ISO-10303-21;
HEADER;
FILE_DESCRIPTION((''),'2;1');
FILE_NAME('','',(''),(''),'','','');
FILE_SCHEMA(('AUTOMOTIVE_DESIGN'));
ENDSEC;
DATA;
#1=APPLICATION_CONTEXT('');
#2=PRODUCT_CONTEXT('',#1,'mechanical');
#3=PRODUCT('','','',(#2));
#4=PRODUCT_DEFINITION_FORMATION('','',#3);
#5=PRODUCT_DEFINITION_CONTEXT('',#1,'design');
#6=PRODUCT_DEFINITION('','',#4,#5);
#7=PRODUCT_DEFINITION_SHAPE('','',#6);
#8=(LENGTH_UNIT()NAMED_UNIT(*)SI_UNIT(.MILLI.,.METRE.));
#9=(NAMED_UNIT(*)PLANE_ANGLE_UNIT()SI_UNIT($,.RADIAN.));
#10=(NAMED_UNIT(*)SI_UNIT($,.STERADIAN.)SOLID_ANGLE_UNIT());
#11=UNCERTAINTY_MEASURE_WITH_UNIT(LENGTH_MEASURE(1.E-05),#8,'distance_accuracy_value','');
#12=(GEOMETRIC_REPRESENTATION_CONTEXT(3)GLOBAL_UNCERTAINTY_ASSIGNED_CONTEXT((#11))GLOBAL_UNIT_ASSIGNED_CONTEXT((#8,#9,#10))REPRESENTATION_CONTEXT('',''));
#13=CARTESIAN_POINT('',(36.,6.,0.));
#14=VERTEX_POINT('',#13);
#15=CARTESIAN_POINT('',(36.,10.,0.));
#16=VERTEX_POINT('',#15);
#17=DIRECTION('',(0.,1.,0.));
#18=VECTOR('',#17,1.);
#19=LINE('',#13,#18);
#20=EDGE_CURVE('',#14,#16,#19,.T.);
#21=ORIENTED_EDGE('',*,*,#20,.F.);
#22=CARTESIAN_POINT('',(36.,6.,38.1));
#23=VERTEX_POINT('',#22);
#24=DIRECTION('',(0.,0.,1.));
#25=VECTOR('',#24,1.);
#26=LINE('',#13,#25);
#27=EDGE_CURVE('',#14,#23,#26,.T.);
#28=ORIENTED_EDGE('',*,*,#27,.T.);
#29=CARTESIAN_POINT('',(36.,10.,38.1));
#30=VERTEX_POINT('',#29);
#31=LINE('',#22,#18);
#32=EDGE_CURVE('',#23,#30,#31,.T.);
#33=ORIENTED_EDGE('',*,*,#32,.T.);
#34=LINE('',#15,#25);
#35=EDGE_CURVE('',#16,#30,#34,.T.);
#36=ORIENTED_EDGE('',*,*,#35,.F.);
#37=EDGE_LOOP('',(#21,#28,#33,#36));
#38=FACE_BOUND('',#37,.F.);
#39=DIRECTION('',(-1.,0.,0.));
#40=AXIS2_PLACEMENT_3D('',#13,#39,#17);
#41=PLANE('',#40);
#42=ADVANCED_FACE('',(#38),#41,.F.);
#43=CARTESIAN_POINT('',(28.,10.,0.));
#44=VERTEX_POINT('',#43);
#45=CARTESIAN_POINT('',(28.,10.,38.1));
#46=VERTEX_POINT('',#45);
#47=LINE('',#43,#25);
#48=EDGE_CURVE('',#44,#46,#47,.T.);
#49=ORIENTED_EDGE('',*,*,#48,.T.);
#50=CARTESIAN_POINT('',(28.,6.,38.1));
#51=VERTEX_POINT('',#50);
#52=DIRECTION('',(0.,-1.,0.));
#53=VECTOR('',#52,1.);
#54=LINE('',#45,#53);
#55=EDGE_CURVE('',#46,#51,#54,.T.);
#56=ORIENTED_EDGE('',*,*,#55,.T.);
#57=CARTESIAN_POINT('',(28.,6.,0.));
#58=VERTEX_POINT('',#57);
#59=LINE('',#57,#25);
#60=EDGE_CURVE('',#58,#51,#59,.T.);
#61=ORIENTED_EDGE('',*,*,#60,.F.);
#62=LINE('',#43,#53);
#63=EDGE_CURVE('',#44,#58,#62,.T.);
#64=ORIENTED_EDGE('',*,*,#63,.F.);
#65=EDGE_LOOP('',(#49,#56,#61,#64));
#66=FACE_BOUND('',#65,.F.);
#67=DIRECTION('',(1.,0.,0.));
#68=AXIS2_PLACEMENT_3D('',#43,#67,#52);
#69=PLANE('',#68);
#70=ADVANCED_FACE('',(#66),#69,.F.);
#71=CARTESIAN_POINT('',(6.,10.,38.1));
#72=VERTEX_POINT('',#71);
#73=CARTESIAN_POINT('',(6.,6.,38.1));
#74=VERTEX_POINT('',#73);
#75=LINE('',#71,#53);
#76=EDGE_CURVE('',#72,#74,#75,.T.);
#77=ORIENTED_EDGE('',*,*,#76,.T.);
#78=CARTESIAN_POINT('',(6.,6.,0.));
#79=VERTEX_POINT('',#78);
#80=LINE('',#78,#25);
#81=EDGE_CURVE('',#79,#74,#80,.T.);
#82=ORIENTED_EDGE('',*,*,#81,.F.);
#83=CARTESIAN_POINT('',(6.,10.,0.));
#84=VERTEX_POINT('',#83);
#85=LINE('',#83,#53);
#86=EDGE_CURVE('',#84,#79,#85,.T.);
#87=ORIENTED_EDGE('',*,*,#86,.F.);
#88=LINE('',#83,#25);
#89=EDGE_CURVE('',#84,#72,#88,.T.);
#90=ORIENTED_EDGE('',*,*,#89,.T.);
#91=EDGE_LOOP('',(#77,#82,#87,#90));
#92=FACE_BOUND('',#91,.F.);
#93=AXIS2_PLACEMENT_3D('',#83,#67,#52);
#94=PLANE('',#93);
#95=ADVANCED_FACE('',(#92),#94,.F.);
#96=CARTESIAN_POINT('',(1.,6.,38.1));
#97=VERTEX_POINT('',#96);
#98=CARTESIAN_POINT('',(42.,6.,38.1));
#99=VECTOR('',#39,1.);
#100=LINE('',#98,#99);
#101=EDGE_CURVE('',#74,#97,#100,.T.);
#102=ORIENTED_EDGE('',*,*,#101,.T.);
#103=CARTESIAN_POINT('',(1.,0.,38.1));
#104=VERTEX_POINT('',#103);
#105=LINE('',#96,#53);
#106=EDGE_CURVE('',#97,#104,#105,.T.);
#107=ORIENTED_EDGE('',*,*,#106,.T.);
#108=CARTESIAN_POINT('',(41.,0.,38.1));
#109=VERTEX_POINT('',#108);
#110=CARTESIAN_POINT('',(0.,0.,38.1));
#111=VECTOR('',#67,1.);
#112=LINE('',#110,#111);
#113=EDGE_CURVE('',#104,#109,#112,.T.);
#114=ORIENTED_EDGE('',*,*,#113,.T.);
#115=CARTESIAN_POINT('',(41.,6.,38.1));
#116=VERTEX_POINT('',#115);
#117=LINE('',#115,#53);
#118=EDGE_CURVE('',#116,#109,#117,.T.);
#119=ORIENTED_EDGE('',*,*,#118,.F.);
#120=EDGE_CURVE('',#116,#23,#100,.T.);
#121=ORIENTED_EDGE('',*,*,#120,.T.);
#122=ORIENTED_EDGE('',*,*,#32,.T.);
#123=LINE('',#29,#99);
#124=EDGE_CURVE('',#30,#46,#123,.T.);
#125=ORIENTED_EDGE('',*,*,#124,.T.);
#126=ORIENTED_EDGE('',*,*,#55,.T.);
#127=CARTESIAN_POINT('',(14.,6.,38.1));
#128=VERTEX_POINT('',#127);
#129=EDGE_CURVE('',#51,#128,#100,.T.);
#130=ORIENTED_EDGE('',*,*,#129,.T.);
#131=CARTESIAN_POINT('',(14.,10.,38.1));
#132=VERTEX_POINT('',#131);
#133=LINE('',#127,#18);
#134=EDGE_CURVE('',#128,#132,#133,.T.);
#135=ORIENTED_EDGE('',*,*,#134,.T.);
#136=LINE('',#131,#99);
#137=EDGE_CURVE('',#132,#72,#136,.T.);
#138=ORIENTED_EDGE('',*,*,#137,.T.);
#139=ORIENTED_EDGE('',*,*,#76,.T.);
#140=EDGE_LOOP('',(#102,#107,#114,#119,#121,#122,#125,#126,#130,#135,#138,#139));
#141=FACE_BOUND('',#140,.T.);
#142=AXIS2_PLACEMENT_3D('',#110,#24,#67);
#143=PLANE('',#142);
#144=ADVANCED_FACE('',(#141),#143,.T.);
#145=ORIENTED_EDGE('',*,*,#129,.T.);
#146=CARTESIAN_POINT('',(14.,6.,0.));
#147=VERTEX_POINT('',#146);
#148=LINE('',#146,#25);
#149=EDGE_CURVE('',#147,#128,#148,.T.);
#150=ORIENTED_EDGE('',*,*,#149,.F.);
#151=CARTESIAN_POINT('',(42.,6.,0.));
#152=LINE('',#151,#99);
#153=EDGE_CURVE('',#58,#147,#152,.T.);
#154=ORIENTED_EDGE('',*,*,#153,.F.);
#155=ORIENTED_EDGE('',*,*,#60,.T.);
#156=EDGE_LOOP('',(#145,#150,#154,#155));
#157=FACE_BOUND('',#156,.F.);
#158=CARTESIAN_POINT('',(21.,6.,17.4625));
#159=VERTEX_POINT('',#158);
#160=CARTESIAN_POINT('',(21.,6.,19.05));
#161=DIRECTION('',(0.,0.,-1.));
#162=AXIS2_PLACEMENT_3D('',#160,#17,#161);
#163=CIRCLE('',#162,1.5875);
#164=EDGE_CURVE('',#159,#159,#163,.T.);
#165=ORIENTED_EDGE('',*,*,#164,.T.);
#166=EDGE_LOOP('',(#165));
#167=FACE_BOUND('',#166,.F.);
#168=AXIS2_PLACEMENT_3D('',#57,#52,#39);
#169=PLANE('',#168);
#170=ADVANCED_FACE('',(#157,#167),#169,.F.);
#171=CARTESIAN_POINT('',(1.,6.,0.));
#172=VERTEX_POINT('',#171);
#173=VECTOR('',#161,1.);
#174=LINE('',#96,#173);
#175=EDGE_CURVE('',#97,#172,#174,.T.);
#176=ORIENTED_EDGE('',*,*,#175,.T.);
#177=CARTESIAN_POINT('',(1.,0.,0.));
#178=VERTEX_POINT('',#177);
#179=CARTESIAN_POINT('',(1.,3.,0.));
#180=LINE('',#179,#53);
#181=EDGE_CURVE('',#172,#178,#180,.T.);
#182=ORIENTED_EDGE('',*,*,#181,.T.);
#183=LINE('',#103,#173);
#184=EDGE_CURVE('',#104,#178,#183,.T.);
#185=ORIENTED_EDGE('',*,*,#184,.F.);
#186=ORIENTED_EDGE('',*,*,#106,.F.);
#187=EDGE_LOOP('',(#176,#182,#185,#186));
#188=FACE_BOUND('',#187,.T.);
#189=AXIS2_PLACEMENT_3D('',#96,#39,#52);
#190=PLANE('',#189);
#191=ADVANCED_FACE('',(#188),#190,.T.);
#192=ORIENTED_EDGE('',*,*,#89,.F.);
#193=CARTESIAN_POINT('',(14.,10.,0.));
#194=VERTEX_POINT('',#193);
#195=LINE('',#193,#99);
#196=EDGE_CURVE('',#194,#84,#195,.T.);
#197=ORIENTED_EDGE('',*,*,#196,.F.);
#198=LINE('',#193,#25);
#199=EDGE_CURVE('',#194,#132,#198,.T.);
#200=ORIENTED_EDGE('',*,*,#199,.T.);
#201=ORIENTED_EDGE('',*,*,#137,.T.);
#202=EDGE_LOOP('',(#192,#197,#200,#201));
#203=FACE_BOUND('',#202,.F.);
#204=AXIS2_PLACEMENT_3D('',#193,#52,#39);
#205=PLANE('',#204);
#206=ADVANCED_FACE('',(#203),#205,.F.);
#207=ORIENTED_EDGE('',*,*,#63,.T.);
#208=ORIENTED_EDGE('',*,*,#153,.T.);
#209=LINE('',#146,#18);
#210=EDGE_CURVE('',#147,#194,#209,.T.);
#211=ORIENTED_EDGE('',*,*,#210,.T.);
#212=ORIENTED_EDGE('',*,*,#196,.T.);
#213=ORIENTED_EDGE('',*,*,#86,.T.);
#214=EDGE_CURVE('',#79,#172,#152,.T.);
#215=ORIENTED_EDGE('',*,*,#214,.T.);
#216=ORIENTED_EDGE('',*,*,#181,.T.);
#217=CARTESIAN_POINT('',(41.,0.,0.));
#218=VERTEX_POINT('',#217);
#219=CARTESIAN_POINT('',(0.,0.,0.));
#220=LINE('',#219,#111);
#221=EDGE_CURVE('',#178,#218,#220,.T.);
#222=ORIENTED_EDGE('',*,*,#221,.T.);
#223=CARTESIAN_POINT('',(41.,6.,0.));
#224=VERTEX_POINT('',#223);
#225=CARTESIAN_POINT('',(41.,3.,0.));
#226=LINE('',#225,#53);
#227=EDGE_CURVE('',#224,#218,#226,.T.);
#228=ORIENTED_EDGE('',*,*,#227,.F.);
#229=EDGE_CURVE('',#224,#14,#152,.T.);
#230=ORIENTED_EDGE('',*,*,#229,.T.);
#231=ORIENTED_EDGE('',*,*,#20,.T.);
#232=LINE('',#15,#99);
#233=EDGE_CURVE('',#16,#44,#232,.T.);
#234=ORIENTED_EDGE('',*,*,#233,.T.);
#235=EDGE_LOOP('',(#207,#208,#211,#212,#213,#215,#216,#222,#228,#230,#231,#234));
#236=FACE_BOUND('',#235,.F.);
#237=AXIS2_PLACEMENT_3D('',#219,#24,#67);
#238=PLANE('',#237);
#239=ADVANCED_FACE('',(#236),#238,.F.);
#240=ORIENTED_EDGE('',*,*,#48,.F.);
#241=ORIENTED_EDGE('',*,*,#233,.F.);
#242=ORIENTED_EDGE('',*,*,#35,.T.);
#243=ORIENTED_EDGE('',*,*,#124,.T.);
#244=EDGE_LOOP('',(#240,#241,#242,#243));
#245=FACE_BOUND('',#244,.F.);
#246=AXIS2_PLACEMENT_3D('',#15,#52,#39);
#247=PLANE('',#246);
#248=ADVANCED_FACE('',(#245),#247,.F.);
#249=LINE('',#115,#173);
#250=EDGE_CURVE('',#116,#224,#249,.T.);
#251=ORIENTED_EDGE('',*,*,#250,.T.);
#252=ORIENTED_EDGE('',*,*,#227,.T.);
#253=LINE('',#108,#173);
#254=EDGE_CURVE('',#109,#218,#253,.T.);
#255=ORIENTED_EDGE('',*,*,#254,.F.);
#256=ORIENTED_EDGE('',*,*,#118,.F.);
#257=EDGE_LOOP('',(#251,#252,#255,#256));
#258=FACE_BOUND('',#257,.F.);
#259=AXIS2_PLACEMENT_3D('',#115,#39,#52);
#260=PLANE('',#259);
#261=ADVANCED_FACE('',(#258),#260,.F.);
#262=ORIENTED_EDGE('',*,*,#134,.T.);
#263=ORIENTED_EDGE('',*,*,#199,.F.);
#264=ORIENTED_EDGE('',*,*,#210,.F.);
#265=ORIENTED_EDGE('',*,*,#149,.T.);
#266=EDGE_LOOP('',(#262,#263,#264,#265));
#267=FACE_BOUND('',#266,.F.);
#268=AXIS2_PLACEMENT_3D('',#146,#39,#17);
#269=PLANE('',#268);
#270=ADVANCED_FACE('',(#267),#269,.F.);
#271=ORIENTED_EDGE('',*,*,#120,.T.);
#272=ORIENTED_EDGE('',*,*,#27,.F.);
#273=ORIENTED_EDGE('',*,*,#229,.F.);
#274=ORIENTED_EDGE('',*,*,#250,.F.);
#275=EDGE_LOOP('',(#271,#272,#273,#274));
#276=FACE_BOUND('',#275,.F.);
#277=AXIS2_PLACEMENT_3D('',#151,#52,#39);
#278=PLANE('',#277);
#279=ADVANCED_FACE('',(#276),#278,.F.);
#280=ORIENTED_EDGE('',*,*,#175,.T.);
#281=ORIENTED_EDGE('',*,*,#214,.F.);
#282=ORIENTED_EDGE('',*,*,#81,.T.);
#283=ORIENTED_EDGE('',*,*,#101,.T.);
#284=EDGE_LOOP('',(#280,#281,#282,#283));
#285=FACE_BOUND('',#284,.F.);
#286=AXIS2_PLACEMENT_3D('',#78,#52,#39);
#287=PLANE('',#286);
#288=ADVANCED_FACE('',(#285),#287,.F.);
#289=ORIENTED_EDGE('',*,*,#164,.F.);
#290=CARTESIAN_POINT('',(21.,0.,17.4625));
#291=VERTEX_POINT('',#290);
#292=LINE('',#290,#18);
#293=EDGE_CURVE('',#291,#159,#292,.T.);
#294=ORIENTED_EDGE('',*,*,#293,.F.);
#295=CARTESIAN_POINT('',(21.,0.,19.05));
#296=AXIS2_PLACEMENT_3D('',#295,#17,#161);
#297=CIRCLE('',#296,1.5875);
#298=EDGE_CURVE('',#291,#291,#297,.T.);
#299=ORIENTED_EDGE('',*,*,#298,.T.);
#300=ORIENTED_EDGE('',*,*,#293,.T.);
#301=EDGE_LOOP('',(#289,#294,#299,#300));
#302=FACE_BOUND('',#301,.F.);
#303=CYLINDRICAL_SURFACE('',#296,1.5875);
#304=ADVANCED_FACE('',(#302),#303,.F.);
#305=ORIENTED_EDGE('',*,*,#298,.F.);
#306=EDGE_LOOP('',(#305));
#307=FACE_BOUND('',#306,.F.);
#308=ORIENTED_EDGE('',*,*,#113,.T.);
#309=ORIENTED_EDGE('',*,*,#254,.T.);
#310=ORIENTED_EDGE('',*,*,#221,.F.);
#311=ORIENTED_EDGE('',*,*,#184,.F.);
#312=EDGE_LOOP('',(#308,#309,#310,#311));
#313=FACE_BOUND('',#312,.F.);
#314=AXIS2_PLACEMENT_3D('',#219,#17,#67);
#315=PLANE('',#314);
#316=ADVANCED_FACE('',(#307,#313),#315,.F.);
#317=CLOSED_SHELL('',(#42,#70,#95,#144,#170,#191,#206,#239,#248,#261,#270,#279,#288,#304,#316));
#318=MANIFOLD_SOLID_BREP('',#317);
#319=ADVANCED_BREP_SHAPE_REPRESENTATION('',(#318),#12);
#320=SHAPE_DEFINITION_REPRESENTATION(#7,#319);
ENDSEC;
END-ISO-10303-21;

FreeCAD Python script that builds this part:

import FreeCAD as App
import Part
import Sketcher

V = App.Vector
Q = App.Units.Quantity


def add_polygon(sketch, points):
    """Adds a closed chain of lines whose ends are joined by coincident constraints."""
    first, n = sketch.GeometryCount, len(points)
    for a, b in zip(points, points[1:] + points[:1]):
        sketch.addGeometry(Part.LineSegment(App.Vector(*a, 0), App.Vector(*b, 0)), False)
    for i in range(n):
        sketch.addConstraint(Sketcher.Constraint("Coincident", first + i, 2, first + (i + 1) % n, 1))

doc = App.newDocument("Part")
params = doc.addObject("Spreadsheet::Sheet", "Params")
for row, (alias, value) in enumerate([
    ("sketch1_width", "42 mm"),
    ("sketch1_width2", "6 mm"),
    ("sketch1_width3", "8 mm"),
    ("sketch1_height", "4 mm"),
    ("pad1_length", "38.1 mm"),
    ("hole_diameter", "3.175 mm"),
    ("sketch3_width", "1 mm"),
    ("sketch3_height", "6 mm"),
    ("pocket1_length", "50.8 mm"),
], start=1):
    params.set(f"A{row}", alias)
    params.set(f"B{row}", "=" + value)
    params.setAlias(f"B{row}", alias)

body = doc.addObject("PartDesign::Body", "Body")

sketch1 = body.newObject("Sketcher::SketchObject", "Sketch")
sketch1.AttachmentSupport = (doc.getObject("XY_Plane"), [""])
sketch1.MapMode = "FlatFace"
add_polygon(sketch1, [(0, 6), (0, 0), (42, 0), (42, 6), (36, 6), (36, 10), (28, 10), (28, 6), (14, 6), (14, 10), (6, 10), (6, 6)])
sketch1.addConstraint([
    Sketcher.Constraint("Vertical", 0),
    Sketcher.Constraint("Horizontal", 1),
    Sketcher.Constraint("Vertical", 2),
    Sketcher.Constraint("Horizontal", 3),
    Sketcher.Constraint("Vertical", 4),
    Sketcher.Constraint("Horizontal", 5),
    Sketcher.Constraint("Vertical", 6),
    Sketcher.Constraint("Horizontal", 7),
    Sketcher.Constraint("Vertical", 8),
    Sketcher.Constraint("Horizontal", 9),
    Sketcher.Constraint("Vertical", 10),
    Sketcher.Constraint("Horizontal", 11),
    Sketcher.Constraint("Coincident", 0, 2, -1, 1),
    Sketcher.Constraint("Horizontal", 3, 2, 6, 2),
    Sketcher.Constraint("Horizontal", 5, 2, 8, 2),
    Sketcher.Constraint("Horizontal", 7, 2, 10, 2),
    Sketcher.Constraint("Equal", 5, 9),
    Sketcher.Constraint("Equal", 3, 11),
    Sketcher.Constraint("Equal", 11, 0),
    Sketcher.Constraint("DistanceX", 1, 1, 1, 2, Q("42 mm")),
    Sketcher.Constraint("DistanceX", 3, 2, 3, 1, Q("6 mm")),
    Sketcher.Constraint("DistanceX", 5, 2, 5, 1, Q("8 mm")),
    Sketcher.Constraint("DistanceY", 4, 1, 4, 2, Q("4 mm")),
])
sketch1.setExpression("Constraints[31]", "Params.sketch1_width")
sketch1.setExpression("Constraints[32]", "Params.sketch1_width2")
sketch1.setExpression("Constraints[33]", "Params.sketch1_width3")
sketch1.setExpression("Constraints[34]", "Params.sketch1_height")
pad1 = body.newObject("PartDesign::Pad", "Pad")
pad1.Profile = sketch1
pad1.setExpression("Length", "Params.pad1_length")

sketch2 = body.newObject("Sketcher::SketchObject", "Sketch001")
sketch2.AttachmentSupport = (doc.getObject("XZ_Plane"), [""])
sketch2.MapMode = "FlatFace"
sketch2.addGeometry(Part.Circle(V(21, 19.05, 0), V(0, 0, 1), 1.5875), False)
sketch2.addConstraint([
    Sketcher.Constraint("Diameter", 0, Q("3.175 mm")),
    Sketcher.Constraint("DistanceX", -1, 1, 0, 3, Q("21 mm")),
    Sketcher.Constraint("DistanceY", -1, 1, 0, 3, Q("19.05 mm")),
])
doc.recompute()
hole = body.newObject("PartDesign::Hole", "Hole")
hole.Profile = sketch2
hole.ThreadType = "None"
hole.setExpression("Diameter", "Params.hole_diameter")
hole.DepthType = "ThroughAll"

sketch3 = body.newObject("Sketcher::SketchObject", "Sketch002")
sketch3.AttachmentSupport = (doc.getObject("XY_Plane"), [""])
sketch3.MapMode = "FlatFace"
sketch3.AttachmentOffset = App.Placement(V(0, 0, 38.1), App.Rotation())
add_polygon(sketch3, [(0, 6), (0, 0), (1, 0), (1, 6)])
add_polygon(sketch3, [(41, 6), (41, 0), (42, 0), (42, 6)])
sketch3.addConstraint([
    Sketcher.Constraint("Vertical", 0),
    Sketcher.Constraint("Horizontal", 1),
    Sketcher.Constraint("Vertical", 2),
    Sketcher.Constraint("Horizontal", 3),
    Sketcher.Constraint("Vertical", 4),
    Sketcher.Constraint("Horizontal", 5),
    Sketcher.Constraint("Vertical", 6),
    Sketcher.Constraint("Horizontal", 7),
    Sketcher.Constraint("Coincident", 0, 2, -1, 1),
    Sketcher.Constraint("PointOnObject", 4, 2, -1),
    Sketcher.Constraint("Horizontal", 3, 2, 6, 2),
    Sketcher.Constraint("Equal", 3, 5),
    Sketcher.Constraint("DistanceX", 1, 1, 1, 2, Q("1 mm")),
    Sketcher.Constraint("DistanceY", 0, 2, 0, 1, Q("6 mm")),
    Sketcher.Constraint("DistanceX", -1, 1, 4, 2, Q("41 mm")),
])
sketch3.setExpression("Constraints[20]", "Params.sketch3_width")
sketch3.setExpression("Constraints[21]", "Params.sketch3_height")
pocket1 = body.newObject("PartDesign::Pocket", "Pocket")
pocket1.Profile = sketch3
pocket1.setExpression("Length", "Params.pocket1_length")

doc.recompute()
